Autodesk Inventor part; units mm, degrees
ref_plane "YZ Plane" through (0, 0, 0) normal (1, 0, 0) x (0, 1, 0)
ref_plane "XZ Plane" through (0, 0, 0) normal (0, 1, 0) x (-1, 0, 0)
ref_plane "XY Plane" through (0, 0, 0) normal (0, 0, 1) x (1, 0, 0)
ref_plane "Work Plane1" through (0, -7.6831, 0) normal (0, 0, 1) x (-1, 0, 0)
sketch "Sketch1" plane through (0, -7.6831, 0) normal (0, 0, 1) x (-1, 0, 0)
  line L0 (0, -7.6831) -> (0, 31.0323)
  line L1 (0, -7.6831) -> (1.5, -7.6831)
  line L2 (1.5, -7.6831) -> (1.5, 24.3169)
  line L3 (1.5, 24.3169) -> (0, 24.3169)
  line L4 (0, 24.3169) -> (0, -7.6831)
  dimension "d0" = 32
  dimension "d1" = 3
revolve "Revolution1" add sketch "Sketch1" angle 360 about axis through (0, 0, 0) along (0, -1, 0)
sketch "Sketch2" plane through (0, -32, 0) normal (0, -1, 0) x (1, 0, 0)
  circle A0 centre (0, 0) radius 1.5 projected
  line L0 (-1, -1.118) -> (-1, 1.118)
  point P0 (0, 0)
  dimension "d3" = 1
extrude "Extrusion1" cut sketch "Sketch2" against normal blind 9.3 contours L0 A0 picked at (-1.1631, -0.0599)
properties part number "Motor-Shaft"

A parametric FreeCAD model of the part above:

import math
import FreeCAD as App
import Part
import Sketcher
Q = App.Units.Quantity


def add_polygon(sketch, points):
    """Adds a closed chain of lines whose ends are joined by coincident constraints."""
    first, n = sketch.GeometryCount, len(points)
    for a, b in zip(points, points[1:] + points[:1]):
        sketch.addGeometry(Part.LineSegment(App.Vector(*a, 0), App.Vector(*b, 0)), False)
    for i in range(n):
        sketch.addConstraint(Sketcher.Constraint("Coincident", first + i, 2, first + (i + 1) % n, 1))

doc = App.newDocument("Part")
body = doc.addObject("PartDesign::Body", "Body")

sketch1 = doc.addObject("Sketcher::SketchObject", "Sketch")
body.addObject(sketch1)
sketch1.AttachmentSupport = (doc.XY_Plane, [""])
sketch1.MapMode = "FlatFace"
add_polygon(sketch1, [(0, -32), (0, 0), (-1.5, 0), (-1.5, -32)])
sketch1.addConstraint(Sketcher.Constraint("Vertical", 0))
sketch1.addConstraint(Sketcher.Constraint("Horizontal", 1))
sketch1.addConstraint(Sketcher.Constraint("Vertical", 2))
sketch1.addConstraint(Sketcher.Constraint("Horizontal", 3))
sketch1.addConstraint(Sketcher.Constraint("Coincident", 0, 2, -1, 1))
sketch1.addConstraint(Sketcher.Constraint("DistanceY", 0, 1, 0, 2, Q("32 mm")))
sketch1.addConstraint(Sketcher.Constraint("DistanceX", 1, 2, 1, 1, Q("1.5 mm")))
revolution = doc.addObject("PartDesign::Revolution", "Revolution")
body.addObject(revolution)
revolution.Profile = sketch1
revolution.ReferenceAxis = (sketch1, ["V_Axis"])
revolution.Angle = 360

sketch2 = doc.addObject("Sketcher::SketchObject", "Sketch001")
body.addObject(sketch2)
sketch2.AttachmentSupport = (doc.XZ_Plane, [""])
sketch2.MapMode = "FlatFace"
sketch2.AttachmentOffset = App.Placement(App.Vector(0, 0, 32), App.Rotation())
sketch2.addGeometry(Part.LineSegment(App.Vector(-1, -1.1, 0), App.Vector(-1, 1.1, 0)), False)
sketch2.addGeometry(Part.ArcOfCircle(Part.Circle(App.Vector(0, 0, 0), App.Vector(0, 0, 1), 1.5), math.radians(132), math.radians(228)), False)
sketch2.addConstraint(Sketcher.Constraint("Coincident", 0, 1, 1, 2))
sketch2.addConstraint(Sketcher.Constraint("Coincident", 1, 1, 0, 2))
sketch2.addConstraint(Sketcher.Constraint("Vertical", 0))
sketch2.addConstraint(Sketcher.Constraint("Coincident", 1, 3, -1, 1))
sketch2.addConstraint(Sketcher.Constraint("DistanceX", 0, 1, -1, 1, Q("1 mm")))
sketch2.addConstraint(Sketcher.Constraint("Radius", 1, Q("1.5 mm")))
pocket1 = doc.addObject("PartDesign::Pocket", "Pocket")
body.addObject(pocket1)
pocket1.Profile = sketch2
pocket1.Length = 9.3

doc.recompute()
